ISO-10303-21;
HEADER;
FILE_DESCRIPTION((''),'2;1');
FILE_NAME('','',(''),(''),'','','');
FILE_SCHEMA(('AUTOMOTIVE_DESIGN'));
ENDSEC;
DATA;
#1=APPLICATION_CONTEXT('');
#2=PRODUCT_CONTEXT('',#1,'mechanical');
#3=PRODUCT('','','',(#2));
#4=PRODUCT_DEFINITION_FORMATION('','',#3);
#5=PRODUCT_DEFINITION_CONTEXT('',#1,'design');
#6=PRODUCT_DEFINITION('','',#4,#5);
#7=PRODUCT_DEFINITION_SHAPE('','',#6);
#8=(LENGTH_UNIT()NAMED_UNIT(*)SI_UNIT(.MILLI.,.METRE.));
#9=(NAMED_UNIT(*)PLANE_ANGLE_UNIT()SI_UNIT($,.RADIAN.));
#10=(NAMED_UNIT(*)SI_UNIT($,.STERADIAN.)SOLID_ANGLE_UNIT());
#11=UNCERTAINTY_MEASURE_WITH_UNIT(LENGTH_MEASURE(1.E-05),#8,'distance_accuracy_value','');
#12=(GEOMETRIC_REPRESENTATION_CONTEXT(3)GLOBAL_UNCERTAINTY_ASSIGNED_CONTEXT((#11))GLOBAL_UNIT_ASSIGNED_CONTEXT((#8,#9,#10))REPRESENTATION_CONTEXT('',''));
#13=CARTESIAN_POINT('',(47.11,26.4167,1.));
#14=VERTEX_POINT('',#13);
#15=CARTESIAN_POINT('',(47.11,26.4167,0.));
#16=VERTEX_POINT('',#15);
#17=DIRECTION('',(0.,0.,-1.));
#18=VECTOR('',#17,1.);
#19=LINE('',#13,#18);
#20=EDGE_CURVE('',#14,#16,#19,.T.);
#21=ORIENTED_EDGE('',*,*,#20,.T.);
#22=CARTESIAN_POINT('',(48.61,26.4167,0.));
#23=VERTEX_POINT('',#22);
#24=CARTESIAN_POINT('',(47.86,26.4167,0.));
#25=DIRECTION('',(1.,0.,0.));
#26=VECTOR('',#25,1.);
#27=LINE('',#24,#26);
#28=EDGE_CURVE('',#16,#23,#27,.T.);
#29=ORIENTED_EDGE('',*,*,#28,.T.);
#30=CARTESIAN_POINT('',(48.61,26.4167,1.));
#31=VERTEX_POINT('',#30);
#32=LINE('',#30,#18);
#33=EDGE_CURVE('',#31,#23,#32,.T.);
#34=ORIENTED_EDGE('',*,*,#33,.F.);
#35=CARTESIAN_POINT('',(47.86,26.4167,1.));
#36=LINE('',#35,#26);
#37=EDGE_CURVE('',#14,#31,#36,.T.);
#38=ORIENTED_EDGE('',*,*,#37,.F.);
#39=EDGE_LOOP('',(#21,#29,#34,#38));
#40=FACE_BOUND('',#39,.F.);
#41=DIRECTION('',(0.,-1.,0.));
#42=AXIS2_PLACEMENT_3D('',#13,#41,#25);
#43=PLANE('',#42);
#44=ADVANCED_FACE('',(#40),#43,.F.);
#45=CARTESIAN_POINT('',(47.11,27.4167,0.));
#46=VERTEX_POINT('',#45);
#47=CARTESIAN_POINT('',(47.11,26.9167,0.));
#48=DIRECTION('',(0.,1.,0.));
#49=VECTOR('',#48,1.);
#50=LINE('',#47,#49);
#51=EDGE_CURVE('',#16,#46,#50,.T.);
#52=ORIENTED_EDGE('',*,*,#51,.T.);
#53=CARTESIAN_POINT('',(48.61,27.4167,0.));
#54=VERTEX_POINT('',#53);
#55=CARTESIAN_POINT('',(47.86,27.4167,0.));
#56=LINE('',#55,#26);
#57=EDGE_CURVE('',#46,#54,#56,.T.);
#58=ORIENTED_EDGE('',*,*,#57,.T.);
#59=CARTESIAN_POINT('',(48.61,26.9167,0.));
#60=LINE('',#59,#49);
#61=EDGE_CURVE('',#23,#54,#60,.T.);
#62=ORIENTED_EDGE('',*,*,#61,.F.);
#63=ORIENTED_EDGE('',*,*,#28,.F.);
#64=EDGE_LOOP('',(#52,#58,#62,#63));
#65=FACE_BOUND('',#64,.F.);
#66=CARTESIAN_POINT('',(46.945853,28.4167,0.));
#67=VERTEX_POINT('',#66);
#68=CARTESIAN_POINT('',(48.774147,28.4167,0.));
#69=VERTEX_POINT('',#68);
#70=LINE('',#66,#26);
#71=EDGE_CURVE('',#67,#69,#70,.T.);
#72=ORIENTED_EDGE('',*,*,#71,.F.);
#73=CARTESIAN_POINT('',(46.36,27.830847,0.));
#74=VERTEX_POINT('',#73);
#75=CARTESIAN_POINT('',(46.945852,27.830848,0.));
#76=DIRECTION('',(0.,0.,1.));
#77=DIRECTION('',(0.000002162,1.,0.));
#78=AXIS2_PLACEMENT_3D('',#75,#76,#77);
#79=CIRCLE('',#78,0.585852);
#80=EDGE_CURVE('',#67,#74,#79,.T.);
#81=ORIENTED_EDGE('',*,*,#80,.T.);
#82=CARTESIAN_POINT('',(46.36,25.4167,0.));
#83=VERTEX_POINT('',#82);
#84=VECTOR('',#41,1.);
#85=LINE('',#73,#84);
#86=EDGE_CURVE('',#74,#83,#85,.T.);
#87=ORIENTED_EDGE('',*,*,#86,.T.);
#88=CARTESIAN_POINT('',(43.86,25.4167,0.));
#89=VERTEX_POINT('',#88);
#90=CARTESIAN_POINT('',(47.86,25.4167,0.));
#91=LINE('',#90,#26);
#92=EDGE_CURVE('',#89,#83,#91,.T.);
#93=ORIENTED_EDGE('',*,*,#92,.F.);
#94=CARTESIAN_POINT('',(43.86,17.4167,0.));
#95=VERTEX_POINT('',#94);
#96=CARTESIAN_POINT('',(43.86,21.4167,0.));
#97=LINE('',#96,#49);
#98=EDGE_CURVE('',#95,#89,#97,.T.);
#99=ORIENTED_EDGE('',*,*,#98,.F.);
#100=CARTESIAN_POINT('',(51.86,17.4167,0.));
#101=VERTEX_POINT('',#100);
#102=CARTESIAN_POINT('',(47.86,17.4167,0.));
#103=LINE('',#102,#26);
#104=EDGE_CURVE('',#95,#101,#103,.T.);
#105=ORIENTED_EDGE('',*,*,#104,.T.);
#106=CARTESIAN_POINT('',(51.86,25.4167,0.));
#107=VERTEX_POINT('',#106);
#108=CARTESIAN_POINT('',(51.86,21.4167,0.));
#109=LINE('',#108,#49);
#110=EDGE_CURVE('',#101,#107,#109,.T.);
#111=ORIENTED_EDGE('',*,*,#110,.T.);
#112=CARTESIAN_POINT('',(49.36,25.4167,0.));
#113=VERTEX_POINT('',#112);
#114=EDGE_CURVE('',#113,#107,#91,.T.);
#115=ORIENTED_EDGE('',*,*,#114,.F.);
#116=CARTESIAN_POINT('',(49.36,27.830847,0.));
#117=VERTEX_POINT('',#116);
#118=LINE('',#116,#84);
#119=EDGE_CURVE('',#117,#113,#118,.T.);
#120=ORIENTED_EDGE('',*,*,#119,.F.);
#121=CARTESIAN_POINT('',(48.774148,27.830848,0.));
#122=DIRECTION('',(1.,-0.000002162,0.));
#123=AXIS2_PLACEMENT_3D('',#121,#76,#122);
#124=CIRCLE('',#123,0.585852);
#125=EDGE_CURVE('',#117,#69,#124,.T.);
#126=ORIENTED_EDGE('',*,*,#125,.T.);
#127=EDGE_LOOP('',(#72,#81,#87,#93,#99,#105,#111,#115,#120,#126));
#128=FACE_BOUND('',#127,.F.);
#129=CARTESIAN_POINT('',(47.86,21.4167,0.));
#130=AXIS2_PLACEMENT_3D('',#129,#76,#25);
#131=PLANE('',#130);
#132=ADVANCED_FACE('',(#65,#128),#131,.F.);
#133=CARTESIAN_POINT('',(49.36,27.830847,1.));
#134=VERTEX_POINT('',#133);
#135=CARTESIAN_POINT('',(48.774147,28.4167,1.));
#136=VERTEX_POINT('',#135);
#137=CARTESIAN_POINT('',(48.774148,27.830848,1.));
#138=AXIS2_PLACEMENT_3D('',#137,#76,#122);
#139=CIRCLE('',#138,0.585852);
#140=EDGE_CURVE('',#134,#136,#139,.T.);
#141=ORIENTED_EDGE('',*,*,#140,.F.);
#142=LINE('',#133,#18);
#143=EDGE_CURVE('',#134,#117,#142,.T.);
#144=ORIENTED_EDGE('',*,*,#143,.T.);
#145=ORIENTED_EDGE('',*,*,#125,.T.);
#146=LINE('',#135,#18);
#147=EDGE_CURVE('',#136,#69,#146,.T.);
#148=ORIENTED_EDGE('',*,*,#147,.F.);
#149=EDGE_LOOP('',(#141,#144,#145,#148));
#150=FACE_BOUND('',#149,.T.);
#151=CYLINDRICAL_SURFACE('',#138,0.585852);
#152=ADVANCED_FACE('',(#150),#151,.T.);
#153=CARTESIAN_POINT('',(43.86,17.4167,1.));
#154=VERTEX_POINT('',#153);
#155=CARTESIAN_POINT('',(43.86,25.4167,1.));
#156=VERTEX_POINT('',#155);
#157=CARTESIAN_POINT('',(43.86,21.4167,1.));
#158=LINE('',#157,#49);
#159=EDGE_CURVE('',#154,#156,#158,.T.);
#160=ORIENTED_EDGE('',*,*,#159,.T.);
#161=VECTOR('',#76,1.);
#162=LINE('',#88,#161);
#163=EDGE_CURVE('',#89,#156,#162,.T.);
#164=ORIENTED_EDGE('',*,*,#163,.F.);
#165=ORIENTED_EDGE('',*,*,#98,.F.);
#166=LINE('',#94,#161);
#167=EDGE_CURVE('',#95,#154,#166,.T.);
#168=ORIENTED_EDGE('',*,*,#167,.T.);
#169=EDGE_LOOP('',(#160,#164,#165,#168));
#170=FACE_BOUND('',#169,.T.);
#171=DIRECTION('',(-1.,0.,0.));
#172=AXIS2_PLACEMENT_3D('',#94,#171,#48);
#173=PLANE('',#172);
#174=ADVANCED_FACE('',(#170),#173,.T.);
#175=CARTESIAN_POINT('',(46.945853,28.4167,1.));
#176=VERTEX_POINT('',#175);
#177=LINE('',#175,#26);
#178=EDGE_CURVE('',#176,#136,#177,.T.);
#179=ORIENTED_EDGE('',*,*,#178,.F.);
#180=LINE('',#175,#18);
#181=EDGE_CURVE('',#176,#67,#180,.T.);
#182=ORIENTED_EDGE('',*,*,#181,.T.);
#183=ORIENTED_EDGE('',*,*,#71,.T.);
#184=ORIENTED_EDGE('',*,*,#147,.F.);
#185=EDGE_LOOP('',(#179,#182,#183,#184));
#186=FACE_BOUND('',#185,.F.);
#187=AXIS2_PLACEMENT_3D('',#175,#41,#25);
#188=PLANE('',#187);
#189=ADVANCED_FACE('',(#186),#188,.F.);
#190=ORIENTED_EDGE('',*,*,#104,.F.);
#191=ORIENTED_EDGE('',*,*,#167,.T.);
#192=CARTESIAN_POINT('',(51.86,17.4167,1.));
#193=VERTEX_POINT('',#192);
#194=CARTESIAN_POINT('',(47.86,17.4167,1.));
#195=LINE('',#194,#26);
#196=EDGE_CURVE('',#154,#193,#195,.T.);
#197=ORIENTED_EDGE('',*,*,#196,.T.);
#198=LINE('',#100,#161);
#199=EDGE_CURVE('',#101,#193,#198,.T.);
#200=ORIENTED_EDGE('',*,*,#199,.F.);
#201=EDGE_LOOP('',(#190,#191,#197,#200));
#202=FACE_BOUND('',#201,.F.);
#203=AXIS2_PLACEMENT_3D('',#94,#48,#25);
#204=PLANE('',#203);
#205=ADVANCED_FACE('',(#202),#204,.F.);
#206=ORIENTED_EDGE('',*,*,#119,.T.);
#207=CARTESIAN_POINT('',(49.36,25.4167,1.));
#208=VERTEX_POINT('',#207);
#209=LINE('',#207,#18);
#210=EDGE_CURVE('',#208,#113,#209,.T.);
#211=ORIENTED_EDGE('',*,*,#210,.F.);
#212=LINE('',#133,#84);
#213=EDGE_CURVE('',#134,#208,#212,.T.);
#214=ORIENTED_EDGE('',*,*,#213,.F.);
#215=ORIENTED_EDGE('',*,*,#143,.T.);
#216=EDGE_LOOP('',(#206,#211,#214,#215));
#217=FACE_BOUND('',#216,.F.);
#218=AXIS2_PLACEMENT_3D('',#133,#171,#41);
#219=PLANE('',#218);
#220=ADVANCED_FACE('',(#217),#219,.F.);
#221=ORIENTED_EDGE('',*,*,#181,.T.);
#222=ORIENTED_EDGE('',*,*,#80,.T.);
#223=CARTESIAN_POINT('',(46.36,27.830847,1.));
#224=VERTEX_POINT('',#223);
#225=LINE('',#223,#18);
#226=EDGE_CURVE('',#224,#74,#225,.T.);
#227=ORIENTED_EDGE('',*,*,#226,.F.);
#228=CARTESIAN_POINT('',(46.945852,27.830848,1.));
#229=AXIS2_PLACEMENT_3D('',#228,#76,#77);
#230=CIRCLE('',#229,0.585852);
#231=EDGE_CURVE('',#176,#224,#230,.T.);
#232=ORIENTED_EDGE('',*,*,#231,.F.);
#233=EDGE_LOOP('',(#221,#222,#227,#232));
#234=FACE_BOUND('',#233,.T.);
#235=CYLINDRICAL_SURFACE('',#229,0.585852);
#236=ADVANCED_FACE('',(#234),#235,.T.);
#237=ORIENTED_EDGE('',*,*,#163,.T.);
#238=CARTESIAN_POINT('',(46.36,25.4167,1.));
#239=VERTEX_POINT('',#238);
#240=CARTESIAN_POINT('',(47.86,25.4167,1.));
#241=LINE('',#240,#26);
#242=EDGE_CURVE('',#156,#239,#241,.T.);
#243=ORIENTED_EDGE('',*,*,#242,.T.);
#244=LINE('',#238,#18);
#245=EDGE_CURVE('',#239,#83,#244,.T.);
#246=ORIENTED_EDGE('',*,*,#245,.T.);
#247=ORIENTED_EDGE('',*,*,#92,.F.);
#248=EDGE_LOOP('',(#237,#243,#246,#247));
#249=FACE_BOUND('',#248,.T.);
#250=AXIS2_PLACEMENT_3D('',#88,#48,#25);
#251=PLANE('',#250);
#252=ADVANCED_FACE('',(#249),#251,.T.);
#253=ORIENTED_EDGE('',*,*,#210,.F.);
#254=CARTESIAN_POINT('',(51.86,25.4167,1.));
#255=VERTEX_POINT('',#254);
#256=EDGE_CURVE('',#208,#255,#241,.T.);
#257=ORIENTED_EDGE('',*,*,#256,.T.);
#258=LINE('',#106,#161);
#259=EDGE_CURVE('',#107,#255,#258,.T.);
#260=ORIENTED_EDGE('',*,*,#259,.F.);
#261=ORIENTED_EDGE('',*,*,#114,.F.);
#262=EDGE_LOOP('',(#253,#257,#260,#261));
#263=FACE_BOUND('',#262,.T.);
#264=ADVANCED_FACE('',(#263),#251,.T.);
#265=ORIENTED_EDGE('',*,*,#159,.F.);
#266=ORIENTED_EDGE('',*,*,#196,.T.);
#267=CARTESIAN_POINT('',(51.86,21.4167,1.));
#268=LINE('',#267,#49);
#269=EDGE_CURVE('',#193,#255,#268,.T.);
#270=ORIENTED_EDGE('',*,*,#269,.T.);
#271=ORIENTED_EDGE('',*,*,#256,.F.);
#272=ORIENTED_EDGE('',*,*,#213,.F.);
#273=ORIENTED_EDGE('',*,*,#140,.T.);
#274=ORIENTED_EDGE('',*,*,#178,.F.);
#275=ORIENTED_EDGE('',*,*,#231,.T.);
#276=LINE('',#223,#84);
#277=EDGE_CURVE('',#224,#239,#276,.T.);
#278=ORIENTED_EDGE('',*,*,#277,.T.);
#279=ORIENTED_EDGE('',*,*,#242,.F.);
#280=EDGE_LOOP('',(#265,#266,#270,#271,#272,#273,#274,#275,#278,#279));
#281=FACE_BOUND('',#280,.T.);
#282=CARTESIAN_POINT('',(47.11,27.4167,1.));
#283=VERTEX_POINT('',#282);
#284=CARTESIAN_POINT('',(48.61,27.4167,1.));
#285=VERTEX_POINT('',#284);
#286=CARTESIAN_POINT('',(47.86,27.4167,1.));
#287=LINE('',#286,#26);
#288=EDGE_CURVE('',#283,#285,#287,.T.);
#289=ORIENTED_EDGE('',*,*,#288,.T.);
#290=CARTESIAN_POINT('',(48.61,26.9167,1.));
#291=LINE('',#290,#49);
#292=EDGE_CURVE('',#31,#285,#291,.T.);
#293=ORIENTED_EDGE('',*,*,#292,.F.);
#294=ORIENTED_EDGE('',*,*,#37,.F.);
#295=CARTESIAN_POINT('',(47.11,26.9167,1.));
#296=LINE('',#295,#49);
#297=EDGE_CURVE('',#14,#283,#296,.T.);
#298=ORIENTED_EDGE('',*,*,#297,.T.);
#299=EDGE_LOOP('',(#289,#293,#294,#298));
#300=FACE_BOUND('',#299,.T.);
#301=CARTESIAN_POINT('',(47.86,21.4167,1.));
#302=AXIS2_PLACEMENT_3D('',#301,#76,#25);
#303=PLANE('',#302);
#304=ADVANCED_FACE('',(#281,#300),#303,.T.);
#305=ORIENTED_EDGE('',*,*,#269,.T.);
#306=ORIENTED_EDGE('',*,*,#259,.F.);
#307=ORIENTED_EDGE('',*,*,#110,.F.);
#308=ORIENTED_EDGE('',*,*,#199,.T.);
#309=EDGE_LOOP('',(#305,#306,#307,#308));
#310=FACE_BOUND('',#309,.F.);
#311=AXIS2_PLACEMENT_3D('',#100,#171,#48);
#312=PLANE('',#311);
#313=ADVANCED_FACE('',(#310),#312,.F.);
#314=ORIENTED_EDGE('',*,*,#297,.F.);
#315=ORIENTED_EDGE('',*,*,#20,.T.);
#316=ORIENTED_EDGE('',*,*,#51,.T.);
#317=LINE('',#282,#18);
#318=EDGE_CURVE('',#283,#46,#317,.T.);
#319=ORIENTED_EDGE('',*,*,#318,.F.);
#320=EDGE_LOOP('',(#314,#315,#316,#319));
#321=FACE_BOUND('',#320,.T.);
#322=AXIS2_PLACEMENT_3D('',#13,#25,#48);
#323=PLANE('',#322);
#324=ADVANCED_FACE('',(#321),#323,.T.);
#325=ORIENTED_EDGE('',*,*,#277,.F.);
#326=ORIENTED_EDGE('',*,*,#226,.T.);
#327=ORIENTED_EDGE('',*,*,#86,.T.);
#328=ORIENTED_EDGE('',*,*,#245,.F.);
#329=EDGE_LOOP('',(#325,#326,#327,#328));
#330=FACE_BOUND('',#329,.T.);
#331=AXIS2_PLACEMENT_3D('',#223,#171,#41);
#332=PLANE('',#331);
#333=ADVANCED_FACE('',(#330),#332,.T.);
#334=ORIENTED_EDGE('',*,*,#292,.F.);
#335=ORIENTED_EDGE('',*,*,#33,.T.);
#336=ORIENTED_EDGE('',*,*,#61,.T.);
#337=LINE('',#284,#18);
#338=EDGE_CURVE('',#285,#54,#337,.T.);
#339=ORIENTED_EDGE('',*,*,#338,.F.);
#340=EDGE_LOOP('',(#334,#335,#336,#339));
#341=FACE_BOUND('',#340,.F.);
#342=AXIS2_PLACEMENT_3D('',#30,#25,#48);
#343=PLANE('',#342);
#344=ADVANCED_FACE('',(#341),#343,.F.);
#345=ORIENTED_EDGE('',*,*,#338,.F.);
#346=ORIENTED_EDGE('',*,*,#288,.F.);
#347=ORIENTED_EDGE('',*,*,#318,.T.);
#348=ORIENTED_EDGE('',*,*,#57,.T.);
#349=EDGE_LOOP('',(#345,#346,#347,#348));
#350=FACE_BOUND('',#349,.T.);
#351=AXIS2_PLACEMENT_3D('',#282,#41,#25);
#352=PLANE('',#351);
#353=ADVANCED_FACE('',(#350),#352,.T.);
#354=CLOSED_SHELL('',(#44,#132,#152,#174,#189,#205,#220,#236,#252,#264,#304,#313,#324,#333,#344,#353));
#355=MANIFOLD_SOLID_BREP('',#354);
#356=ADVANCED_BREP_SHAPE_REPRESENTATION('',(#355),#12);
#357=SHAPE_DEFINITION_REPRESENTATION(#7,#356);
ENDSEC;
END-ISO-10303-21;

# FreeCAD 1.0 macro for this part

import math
import FreeCAD as App
import Part
import Sketcher
from FreeCAD import Vector
Q = App.Units.Quantity


def add_polygon(sketch, points):
    """Adds a closed chain of lines whose ends are joined by coincident constraints."""
    first, n = sketch.GeometryCount, len(points)
    for a, b in zip(points, points[1:] + points[:1]):
        sketch.addGeometry(Part.LineSegment(App.Vector(*a, 0), App.Vector(*b, 0)), False)
    for i in range(n):
        sketch.addConstraint(Sketcher.Constraint("Coincident", first + i, 2, first + (i + 1) % n, 1))

doc = App.newDocument("Part")
body = doc.addObject("PartDesign::Body", "Body")

# Sketch on XY plane
sketch1 = body.newObject("Sketcher::SketchObject", "Sketch")
sketch1.AttachmentSupport = (doc.getObject("XY_Plane"), [""])
sketch1.MapMode = "FlatFace"
sketch1.AttachmentOffset = App.Placement(Vector(0, 0, 1), App.Rotation())
sketch1.addGeometry(Part.LineSegment(Vector(46.4, 25.4, 0), Vector(49.4, 25.4, 0)), False)  # 0
sketch1.addGeometry(Part.LineSegment(Vector(49.4, 25.4, 0), Vector(49.4, 27.8, 0)), False)  # 1
sketch1.addGeometry(Part.ArcOfCircle(Part.Circle(Vector(48.8, 27.8, 0), Vector(0, 0, 1), 0.6), math.radians(0), math.radians(90)), False)  # 2
sketch1.addGeometry(Part.LineSegment(Vector(48.8, 28.4, 0), Vector(46.9, 28.4, 0)), False)  # 3
sketch1.addGeometry(Part.ArcOfCircle(Part.Circle(Vector(46.9, 27.8, 0), Vector(0, 0, 1), 0.6), math.radians(90), math.radians(180)), False)  # 4
sketch1.addGeometry(Part.LineSegment(Vector(46.4, 27.8, 0), Vector(46.4, 25.4, 0)), False)  # 5
add_polygon(sketch1, [(47.1, 26.4), (47.1, 27.4), (48.6, 27.4), (48.6, 26.4)])  # lines 6-9
sketch1.addConstraint([
    Sketcher.Constraint("Coincident", 0, 2, 1, 1),
    Sketcher.Constraint("Coincident", 1, 2, 2, 1),
    Sketcher.Constraint("Coincident", 2, 2, 3, 1),
    Sketcher.Constraint("Coincident", 3, 2, 4, 1),
    Sketcher.Constraint("Coincident", 4, 2, 5, 1),
    Sketcher.Constraint("Coincident", 5, 2, 0, 1),
    Sketcher.Constraint("Horizontal", 0),
    Sketcher.Constraint("Vertical", 1),
    Sketcher.Constraint("Horizontal", 3),
    Sketcher.Constraint("Vertical", 5),
    Sketcher.Constraint("Vertical", 6),
    Sketcher.Constraint("Horizontal", 7),
    Sketcher.Constraint("Vertical", 8),
    Sketcher.Constraint("Horizontal", 9),
    Sketcher.Constraint("Equal", 2, 4),
    Sketcher.Constraint("Horizontal", 4, 3, 1, 2),
    Sketcher.Constraint("Horizontal", 1, 2, 4, 2),
    Sketcher.Constraint("Vertical", 4, 3, 3, 2),
    Sketcher.Constraint("DistanceX", 0, 1, 0, 2, Q("3 mm")),
    Sketcher.Constraint("DistanceY", 6, 1, 6, 2, Q("1 mm")),
    Sketcher.Constraint("DistanceX", 7, 1, 7, 2, Q("1.5 mm")),
    Sketcher.Constraint("DistanceY", 0, 2, 2, 2, Q("3 mm")),
    Sketcher.Constraint("DistanceY", 6, 2, 3, 2, Q("1 mm")),
    Sketcher.Constraint("DistanceX", -1, 1, 0, 2, Q("49.36 mm")),
    Sketcher.Constraint("DistanceX", -1, 1, 6, 2, Q("47.11 mm")),
    Sketcher.Constraint("Radius", 2, Q("0.585852 mm")),
    Sketcher.Constraint("DistanceY", -1, 1, 0, 2, Q("25.4167 mm")),
    Sketcher.Constraint("DistanceX", 3, 2, 3, 1, Q("1.828294 mm")),
])
pad1 = body.newObject("PartDesign::Pad", "Pad")
pad1.Profile = sketch1
pad1.Length = 1
pad1.Reversed = True
body2 = doc.addObject("PartDesign::Body", "Body001")

# Sketch on XY plane
sketch2 = body2.newObject("Sketcher::SketchObject", "Sketch001")
sketch2.AttachmentSupport = (doc.getObject("XY_Plane001"), [""])
sketch2.MapMode = "FlatFace"
add_polygon(sketch2, [(44, 25), (44, 17), (52, 17), (52, 25)])  # lines 0-3
sketch2.addConstraint([
    Sketcher.Constraint("Vertical", 0),
    Sketcher.Constraint("Horizontal", 1),
    Sketcher.Constraint("Vertical", 2),
    Sketcher.Constraint("Horizontal", 3),
    Sketcher.Constraint("Equal", 3, 0),
    Sketcher.Constraint("DistanceX", 1, 1, 1, 2, Q("8 mm")),
    Sketcher.Constraint("DistanceX", -1, 1, 0, 2, Q("43.86 mm")),
    Sketcher.Constraint("DistanceY", -1, 1, 0, 2, Q("17.4167 mm")),
])
pad2 = body2.newObject("PartDesign::Pad", "Pad001")
pad2.Profile = sketch2
pad2.Length = 1
doc.recompute()

boolean = body2.newObject("PartDesign::Boolean", "Boolean")
boolean.Type = "Fuse"
boolean.addObjects([body])

doc.recompute()
